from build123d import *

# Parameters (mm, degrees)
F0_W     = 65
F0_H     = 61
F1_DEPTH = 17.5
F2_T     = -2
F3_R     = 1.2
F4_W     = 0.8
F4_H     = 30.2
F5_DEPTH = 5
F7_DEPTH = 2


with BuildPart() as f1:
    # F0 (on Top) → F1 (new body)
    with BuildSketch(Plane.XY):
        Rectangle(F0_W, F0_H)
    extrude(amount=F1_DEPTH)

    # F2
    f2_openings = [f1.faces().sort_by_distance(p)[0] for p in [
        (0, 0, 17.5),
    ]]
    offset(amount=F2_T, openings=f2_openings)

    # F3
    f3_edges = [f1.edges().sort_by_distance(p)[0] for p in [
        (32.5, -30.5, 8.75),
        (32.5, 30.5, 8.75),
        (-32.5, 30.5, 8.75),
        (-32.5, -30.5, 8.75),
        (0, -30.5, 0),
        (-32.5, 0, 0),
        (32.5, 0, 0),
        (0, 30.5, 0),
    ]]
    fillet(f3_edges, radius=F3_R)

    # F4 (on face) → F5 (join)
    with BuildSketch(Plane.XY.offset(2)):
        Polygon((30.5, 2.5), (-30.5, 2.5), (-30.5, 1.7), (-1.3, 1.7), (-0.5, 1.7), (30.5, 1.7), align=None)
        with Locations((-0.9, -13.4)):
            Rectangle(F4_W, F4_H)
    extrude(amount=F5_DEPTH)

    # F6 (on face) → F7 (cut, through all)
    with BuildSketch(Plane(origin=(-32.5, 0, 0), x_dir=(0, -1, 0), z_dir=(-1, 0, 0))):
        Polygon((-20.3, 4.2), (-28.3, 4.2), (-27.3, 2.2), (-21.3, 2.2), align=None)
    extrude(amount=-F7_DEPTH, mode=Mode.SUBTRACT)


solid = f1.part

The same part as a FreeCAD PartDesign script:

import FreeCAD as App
import Part
import Sketcher
Q = App.Units.Quantity


def edges_at(feature, points):
    """Names of the edges that pass closest to the given points."""
    edges = feature.Shape.Edges
    near = lambda p: min(range(len(edges)), key=lambda i: edges[i].distToShape(Part.Vertex(*p))[0])
    return sorted({f"Edge{near(p) + 1}" for p in points})


def faces_at(feature, points):
    """Names of the faces that lie closest to the given points."""
    faces = feature.Shape.Faces
    near = lambda p: min(range(len(faces)), key=lambda i: faces[i].distToShape(Part.Vertex(*p))[0])
    return sorted({f"Face{near(p) + 1}" for p in points})


def add_polygon(sketch, points):
    """Adds a closed chain of lines whose ends are joined by coincident constraints."""
    first, n = sketch.GeometryCount, len(points)
    for a, b in zip(points, points[1:] + points[:1]):
        sketch.addGeometry(Part.LineSegment(App.Vector(*a, 0), App.Vector(*b, 0)), False)
    for i in range(n):
        sketch.addConstraint(Sketcher.Constraint("Coincident", first + i, 2, first + (i + 1) % n, 1))

doc = App.newDocument("Part")
params = doc.addObject("Spreadsheet::Sheet", "Params")
for row, (alias, value) in enumerate([
    ("sketch1_width", "65 mm"),
    ("sketch1_height", "61 mm"),
    ("pad1_length", "17.5 mm"),
    ("thickness_wall", "2 mm"),
    ("fillet_radius", "1.2 mm"),
    ("sketch2_width", "61 mm"),
    ("sketch2_width2", "31 mm"),
    ("sketch2_width3", "29.2 mm"),
    ("sketch2_height", "30.2 mm"),
    ("pad2_length", "5 mm"),
    ("sketch3_width", "8 mm"),
    ("sketch3_width2", "6 mm"),
    ("pocket1_length", "2 mm"),
], start=1):
    params.set(f"A{row}", alias)
    params.set(f"B{row}", "=" + value)
    params.setAlias(f"B{row}", alias)

body = doc.addObject("PartDesign::Body", "Body")

sketch1 = body.newObject("Sketcher::SketchObject", "Sketch")
sketch1.AttachmentSupport = (doc.getObject("XY_Plane"), [""])
sketch1.MapMode = "FlatFace"
add_polygon(sketch1, [(-32, 30), (-32, -30), (32, -30), (32, 30)])
sketch1.addConstraint([
    Sketcher.Constraint("Vertical", 0),
    Sketcher.Constraint("Horizontal", 1),
    Sketcher.Constraint("Vertical", 2),
    Sketcher.Constraint("Horizontal", 3),
    Sketcher.Constraint("Symmetric", 0, 2, 2, 2, -1, 1),
    Sketcher.Constraint("DistanceX", 1, 1, 1, 2, Q("65 mm")),
    Sketcher.Constraint("DistanceY", 0, 2, 0, 1, Q("61 mm")),
])
sketch1.setExpression("Constraints[9]", "Params.sketch1_width")
sketch1.setExpression("Constraints[10]", "Params.sketch1_height")
pad1 = body.newObject("PartDesign::Pad", "Pad")
pad1.Profile = sketch1
pad1.setExpression("Length", "Params.pad1_length")
doc.recompute()

thickness = body.newObject("PartDesign::Thickness", "Thickness")
thickness.Base = (pad1, faces_at(pad1, [(0, 0, 17.5)]))
thickness.setExpression("Value", "Params.thickness_wall")
thickness.Reversed = True
thickness.Join = "Arc"
doc.recompute()

fillet = body.newObject("PartDesign::Fillet", "Fillet")
fillet.Base = (thickness, edges_at(thickness, [
    (32.5, -30.5, 8.75),
    (32.5, 30.5, 8.75),
    (-32.5, 30.5, 8.75),
    (-32.5, -30.5, 8.75),
    (0, -30.5, 0),
    (-32.5, 0, 0),
    (32.5, 0, 0),
    (0, 30.5, 0),
]))
fillet.setExpression("Radius", "Params.fillet_radius")

sketch2 = body.newObject("Sketcher::SketchObject", "Sketch001")
sketch2.AttachmentSupport = (doc.getObject("XY_Plane"), [""])
sketch2.MapMode = "FlatFace"
sketch2.AttachmentOffset = App.Placement(App.Vector(0, 0, 2), App.Rotation())
add_polygon(sketch2, [(30.5, 2.5), (-30.5, 2.5), (-30.5, 1.7), (-1.3, 1.7), (-1.3, -28.5), (-0.5, -28.5), (-0.5, 1.7), (30.5, 1.7)])
sketch2.addConstraint([
    Sketcher.Constraint("Horizontal", 0),
    Sketcher.Constraint("Vertical", 1),
    Sketcher.Constraint("Horizontal", 2),
    Sketcher.Constraint("Vertical", 3),
    Sketcher.Constraint("Horizontal", 4),
    Sketcher.Constraint("Vertical", 5),
    Sketcher.Constraint("Horizontal", 6),
    Sketcher.Constraint("Vertical", 7),
    Sketcher.Constraint("Symmetric", 1, 2, 6, 2, -2),
    Sketcher.Constraint("Equal", 4, 1),
    Sketcher.Constraint("DistanceX", 0, 2, 0, 1, Q("61 mm")),
    Sketcher.Constraint("DistanceX", 6, 1, 6, 2, Q("31 mm")),
    Sketcher.Constraint("DistanceX", 2, 1, 2, 2, Q("29.2 mm")),
    Sketcher.Constraint("DistanceY", 3, 2, 3, 1, Q("30.2 mm")),
    Sketcher.Constraint("DistanceY", -1, 1, 0, 2, Q("2.5 mm")),
])
sketch2.setExpression("Constraints[18]", "Params.sketch2_width")
sketch2.setExpression("Constraints[19]", "Params.sketch2_width2")
sketch2.setExpression("Constraints[20]", "Params.sketch2_width3")
sketch2.setExpression("Constraints[21]", "Params.sketch2_height")
pad2 = body.newObject("PartDesign::Pad", "Pad001")
pad2.Profile = sketch2
pad2.setExpression("Length", "Params.pad2_length")

sketch3 = body.newObject("Sketcher::SketchObject", "Sketch002")
sketch3.AttachmentSupport = (doc.getObject("YZ_Plane"), [""])
sketch3.MapMode = "FlatFace"
sketch3.AttachmentOffset = App.Placement(App.Vector(0, 0, -32.5), App.Rotation())
add_polygon(sketch3, [(20.3, 4.2), (28.3, 4.2), (27.3, 2.2), (21.3, 2.2)])
sketch3.addConstraint([
    Sketcher.Constraint("Horizontal", 0),
    Sketcher.Constraint("Horizontal", 2),
    Sketcher.Constraint("Equal", 1, 3),
    Sketcher.Constraint("DistanceX", 0, 1, 0, 2, Q("8 mm")),
    Sketcher.Constraint("DistanceX", 2, 2, 2, 1, Q("6 mm")),
    Sketcher.Constraint("DistanceY", 1, 2, 0, 2, Q("2 mm")),
    Sketcher.Constraint("DistanceX", -1, 1, 0, 2, Q("28.3 mm")),
    Sketcher.Constraint("DistanceY", -1, 1, 0, 2, Q("4.2 mm")),
])
sketch3.setExpression("Constraints[7]", "Params.sketch3_width")
sketch3.setExpression("Constraints[8]", "Params.sketch3_width2")
pocket1 = body.newObject("PartDesign::Pocket", "Pocket")
pocket1.Profile = sketch3
pocket1.setExpression("Length", "Params.pocket1_length")
pocket1.Reversed = True

doc.recompute()
